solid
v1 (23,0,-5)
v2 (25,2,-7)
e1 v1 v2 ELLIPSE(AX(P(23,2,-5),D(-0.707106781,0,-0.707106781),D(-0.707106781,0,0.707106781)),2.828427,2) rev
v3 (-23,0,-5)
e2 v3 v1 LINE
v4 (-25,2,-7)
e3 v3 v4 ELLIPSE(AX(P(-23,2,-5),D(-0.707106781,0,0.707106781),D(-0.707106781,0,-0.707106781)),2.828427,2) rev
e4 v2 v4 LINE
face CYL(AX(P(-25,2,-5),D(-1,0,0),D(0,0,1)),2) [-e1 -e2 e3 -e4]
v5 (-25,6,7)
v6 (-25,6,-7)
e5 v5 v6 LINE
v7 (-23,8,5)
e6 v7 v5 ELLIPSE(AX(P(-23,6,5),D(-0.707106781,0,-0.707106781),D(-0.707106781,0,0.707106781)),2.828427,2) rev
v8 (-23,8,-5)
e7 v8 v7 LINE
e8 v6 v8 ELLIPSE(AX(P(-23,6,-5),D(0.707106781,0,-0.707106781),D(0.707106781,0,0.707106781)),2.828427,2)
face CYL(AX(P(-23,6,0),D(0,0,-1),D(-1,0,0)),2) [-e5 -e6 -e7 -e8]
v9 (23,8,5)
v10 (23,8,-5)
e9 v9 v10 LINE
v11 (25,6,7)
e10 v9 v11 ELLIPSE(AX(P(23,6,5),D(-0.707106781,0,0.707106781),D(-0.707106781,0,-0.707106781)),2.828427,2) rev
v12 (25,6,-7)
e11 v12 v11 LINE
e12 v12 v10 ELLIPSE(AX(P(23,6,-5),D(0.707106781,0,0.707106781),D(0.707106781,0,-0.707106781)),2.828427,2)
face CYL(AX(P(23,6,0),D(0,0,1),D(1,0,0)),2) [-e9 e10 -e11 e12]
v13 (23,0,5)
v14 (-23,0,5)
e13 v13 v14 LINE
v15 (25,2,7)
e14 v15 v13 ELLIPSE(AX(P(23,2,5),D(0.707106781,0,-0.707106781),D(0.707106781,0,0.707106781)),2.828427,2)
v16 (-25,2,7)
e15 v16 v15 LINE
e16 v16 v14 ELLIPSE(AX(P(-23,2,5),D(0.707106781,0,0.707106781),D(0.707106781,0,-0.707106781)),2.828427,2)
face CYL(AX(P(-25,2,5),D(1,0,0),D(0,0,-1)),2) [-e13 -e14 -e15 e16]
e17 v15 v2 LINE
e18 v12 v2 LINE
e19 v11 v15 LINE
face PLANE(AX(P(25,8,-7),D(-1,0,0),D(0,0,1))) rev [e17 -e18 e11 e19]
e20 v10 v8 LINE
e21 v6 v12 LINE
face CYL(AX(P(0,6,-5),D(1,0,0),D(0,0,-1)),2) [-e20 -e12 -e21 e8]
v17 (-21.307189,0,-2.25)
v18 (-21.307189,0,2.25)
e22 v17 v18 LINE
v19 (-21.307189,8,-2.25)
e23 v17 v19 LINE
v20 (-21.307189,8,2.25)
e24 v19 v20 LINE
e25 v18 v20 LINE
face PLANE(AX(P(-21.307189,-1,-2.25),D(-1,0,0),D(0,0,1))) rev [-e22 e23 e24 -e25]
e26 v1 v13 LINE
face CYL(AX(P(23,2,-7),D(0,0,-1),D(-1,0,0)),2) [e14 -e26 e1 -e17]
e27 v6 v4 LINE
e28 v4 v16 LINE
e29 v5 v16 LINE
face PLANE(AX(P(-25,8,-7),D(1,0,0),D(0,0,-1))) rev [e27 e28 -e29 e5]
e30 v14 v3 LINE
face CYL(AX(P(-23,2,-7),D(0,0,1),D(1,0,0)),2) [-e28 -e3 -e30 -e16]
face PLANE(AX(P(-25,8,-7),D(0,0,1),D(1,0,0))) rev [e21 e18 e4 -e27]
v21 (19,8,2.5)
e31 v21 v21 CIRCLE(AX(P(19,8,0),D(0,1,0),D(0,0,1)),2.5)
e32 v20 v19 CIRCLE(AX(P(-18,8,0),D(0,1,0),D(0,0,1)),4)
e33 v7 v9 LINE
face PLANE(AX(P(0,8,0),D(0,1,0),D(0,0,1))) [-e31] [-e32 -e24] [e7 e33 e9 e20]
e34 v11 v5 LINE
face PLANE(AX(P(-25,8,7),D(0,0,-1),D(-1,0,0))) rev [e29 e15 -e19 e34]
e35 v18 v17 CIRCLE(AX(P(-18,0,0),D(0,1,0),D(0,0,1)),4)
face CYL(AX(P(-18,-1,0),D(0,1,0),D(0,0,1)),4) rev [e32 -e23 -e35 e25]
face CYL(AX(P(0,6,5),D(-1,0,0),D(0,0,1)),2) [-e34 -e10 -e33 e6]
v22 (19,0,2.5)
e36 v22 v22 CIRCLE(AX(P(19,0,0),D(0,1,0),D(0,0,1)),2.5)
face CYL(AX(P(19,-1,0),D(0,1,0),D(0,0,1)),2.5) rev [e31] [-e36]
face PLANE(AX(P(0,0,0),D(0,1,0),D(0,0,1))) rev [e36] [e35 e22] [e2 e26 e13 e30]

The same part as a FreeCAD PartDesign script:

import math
import FreeCAD as App
import Part
import Sketcher
Q = App.Units.Quantity


def edges_at(feature, points):
    """Names of the edges that pass closest to the given points."""
    edges = feature.Shape.Edges
    near = lambda p: min(range(len(edges)), key=lambda i: edges[i].distToShape(Part.Vertex(*p))[0])
    return sorted({f"Edge{near(p) + 1}" for p in points})

doc = App.newDocument("Part")
body = doc.addObject("PartDesign::Body", "Body")

# Sketch on XZ plane
sketch1 = body.newObject("Sketcher::SketchObject", "Sketch")
sketch1.AttachmentSupport = (doc.getObject("XZ_Plane"), [""])
sketch1.MapMode = "FlatFace"
sketch1.addGeometry([
    Part.LineSegment(App.Vector(-25, -7, 0), App.Vector(-25, 7, 0)),
    Part.LineSegment(App.Vector(-25, 7, 0), App.Vector(25, 7, 0)),
    Part.LineSegment(App.Vector(25, 7, 0), App.Vector(25, -7, 0)),
    Part.LineSegment(App.Vector(25, -7, 0), App.Vector(-25, -7, 0)),
], False)
sketch1.addConstraint([
    Sketcher.Constraint("Coincident", 0, 2, 1, 1),
    Sketcher.Constraint("Coincident", 1, 2, 2, 1),
    Sketcher.Constraint("Coincident", 2, 2, 3, 1),
    Sketcher.Constraint("Coincident", 3, 2, 0, 1),
    Sketcher.Constraint("Vertical", 0),
    Sketcher.Constraint("Horizontal", 1),
    Sketcher.Constraint("Vertical", 2),
    Sketcher.Constraint("Horizontal", 3),
    Sketcher.Constraint("Symmetric", 0, 2, 2, 2, -1, 1),
    Sketcher.Constraint("DistanceX", 1, 1, 1, 2, Q("50 mm")),
    Sketcher.Constraint("DistanceY", 0, 1, 0, 2, Q("14 mm")),
])
pad1 = body.newObject("PartDesign::Pad", "Pad")
pad1.Profile = sketch1
pad1.Length = 8
pad1.Reversed = True

# Sketch on XZ plane
sketch2 = body.newObject("Sketcher::SketchObject", "Sketch001")
sketch2.AttachmentSupport = (doc.getObject("XZ_Plane"), [""])
sketch2.MapMode = "FlatFace"
sketch2.AttachmentOffset = App.Placement(App.Vector(0, 0, -8), App.Rotation())
sketch2.addGeometry([
    Part.Circle(App.Vector(19, 0, 0), App.Vector(0, 0, 1), 2.5),
    Part.LineSegment(App.Vector(-21.307189, -2.25, 0), App.Vector(-21.307189, 2.25, 0)),
    Part.ArcOfCircle(Part.Circle(App.Vector(-18, 0, 0), App.Vector(0, 0, 1), 4), math.radians(-145.771134), math.radians(145.771134)),
], False)
sketch2.addConstraint([
    Sketcher.Constraint("Coincident", 1, 1, 2, 1),
    Sketcher.Constraint("Coincident", 2, 2, 1, 2),
    Sketcher.Constraint("Vertical", 1),
    Sketcher.Constraint("PointOnObject", 0, 3, -1),
    Sketcher.Constraint("PointOnObject", 2, 3, -1),
    Sketcher.Constraint("Diameter", 0, Q("5 mm")),
    Sketcher.Constraint("Radius", 2, Q("4 mm")),
    Sketcher.Constraint("DistanceY", 1, 1, 1, 2, Q("4.5 mm")),
    Sketcher.Constraint("DistanceX", -1, 1, 0, 3, Q("19 mm")),
    Sketcher.Constraint("DistanceX", 2, 3, -1, 1, Q("18 mm")),
])
pocket1 = body.newObject("PartDesign::Pocket", "Pocket")
pocket1.Profile = sketch2
pocket1.Length = 18
pocket1.Midplane = True
doc.recompute()

fillet = body.newObject("PartDesign::Fillet", "Fillet")
fillet.Base = (pocket1, edges_at(pocket1, [
    (-25, 8, 0),
    (0, 8, 7),
    (25, 8, 0),
    (0, 0, 7),
    (-25, 0, 0),
    (0, 0, -7),
    (25, 0, 0),
    (0, 8, -7),
]))
fillet.Radius = 2

doc.recompute()
